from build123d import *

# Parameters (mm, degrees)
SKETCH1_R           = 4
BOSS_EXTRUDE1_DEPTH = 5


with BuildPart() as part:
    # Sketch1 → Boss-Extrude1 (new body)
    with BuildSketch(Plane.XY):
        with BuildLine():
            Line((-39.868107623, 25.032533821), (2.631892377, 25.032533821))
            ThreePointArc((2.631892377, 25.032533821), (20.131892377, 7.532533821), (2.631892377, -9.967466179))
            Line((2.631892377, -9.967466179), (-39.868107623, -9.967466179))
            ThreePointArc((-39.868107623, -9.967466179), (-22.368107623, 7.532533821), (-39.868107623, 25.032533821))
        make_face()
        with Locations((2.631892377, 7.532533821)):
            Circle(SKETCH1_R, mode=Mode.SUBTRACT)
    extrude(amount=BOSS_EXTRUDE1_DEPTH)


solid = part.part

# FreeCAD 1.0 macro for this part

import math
import FreeCAD as App
import Part
import Sketcher

V = App.Vector
Q = App.Units.Quantity

doc = App.newDocument("Part")
body = doc.addObject("PartDesign::Body", "Body")

# Sketch on XY plane
sketch1 = doc.addObject("Sketcher::SketchObject", "Sketch")
body.addObject(sketch1)
sketch1.AttachmentSupport = (doc.XY_Plane, [""])
sketch1.MapMode = "FlatFace"
sketch1.addGeometry(Part.LineSegment(V(2.6, 25, 0), V(-39.9, 25, 0)), False)
sketch1.addGeometry(Part.ArcOfCircle(Part.Circle(V(-39.9, 7.5, 0), V(0, 0, 1), 17.5), math.radians(-90), math.radians(90)), False)
sketch1.addGeometry(Part.LineSegment(V(-39.9, -10, 0), V(2.6, -10, 0)), False)
sketch1.addGeometry(Part.ArcOfCircle(Part.Circle(V(2.6, 7.5, 0), V(0, 0, 1), 17.5), math.radians(-90), math.radians(90)), False)
sketch1.addGeometry(Part.Circle(V(2.6, 7.5, 0), V(0, 0, 1), 4), False)
sketch1.addConstraint(Sketcher.Constraint("Tangent", 0, 2, 1, 2))
sketch1.addConstraint(Sketcher.Constraint("Tangent", 1, 1, 2, 1))
sketch1.addConstraint(Sketcher.Constraint("Tangent", 2, 2, 3, 1))
sketch1.addConstraint(Sketcher.Constraint("Tangent", 3, 2, 0, 1))
sketch1.addConstraint(Sketcher.Constraint("Horizontal", 0))
sketch1.addConstraint(Sketcher.Constraint("Horizontal", 2))
sketch1.addConstraint(Sketcher.Constraint("Coincident", 4, 3, 3, 3))
sketch1.addConstraint(Sketcher.Constraint("Diameter", 4, Q("8 mm")))
sketch1.addConstraint(Sketcher.Constraint("Radius", 1, Q("17.5 mm")))
sketch1.addConstraint(Sketcher.Constraint("DistanceX", 0, 2, 0, 1, Q("42.5 mm")))
sketch1.addConstraint(Sketcher.Constraint("DistanceX", 1, 3, -1, 1, Q("39.868108 mm")))
sketch1.addConstraint(Sketcher.Constraint("DistanceY", -1, 1, 1, 3, Q("7.532534 mm")))
pad1 = doc.addObject("PartDesign::Pad", "Pad")
body.addObject(pad1)
pad1.Profile = sketch1
pad1.Length = 5

doc.recompute()
